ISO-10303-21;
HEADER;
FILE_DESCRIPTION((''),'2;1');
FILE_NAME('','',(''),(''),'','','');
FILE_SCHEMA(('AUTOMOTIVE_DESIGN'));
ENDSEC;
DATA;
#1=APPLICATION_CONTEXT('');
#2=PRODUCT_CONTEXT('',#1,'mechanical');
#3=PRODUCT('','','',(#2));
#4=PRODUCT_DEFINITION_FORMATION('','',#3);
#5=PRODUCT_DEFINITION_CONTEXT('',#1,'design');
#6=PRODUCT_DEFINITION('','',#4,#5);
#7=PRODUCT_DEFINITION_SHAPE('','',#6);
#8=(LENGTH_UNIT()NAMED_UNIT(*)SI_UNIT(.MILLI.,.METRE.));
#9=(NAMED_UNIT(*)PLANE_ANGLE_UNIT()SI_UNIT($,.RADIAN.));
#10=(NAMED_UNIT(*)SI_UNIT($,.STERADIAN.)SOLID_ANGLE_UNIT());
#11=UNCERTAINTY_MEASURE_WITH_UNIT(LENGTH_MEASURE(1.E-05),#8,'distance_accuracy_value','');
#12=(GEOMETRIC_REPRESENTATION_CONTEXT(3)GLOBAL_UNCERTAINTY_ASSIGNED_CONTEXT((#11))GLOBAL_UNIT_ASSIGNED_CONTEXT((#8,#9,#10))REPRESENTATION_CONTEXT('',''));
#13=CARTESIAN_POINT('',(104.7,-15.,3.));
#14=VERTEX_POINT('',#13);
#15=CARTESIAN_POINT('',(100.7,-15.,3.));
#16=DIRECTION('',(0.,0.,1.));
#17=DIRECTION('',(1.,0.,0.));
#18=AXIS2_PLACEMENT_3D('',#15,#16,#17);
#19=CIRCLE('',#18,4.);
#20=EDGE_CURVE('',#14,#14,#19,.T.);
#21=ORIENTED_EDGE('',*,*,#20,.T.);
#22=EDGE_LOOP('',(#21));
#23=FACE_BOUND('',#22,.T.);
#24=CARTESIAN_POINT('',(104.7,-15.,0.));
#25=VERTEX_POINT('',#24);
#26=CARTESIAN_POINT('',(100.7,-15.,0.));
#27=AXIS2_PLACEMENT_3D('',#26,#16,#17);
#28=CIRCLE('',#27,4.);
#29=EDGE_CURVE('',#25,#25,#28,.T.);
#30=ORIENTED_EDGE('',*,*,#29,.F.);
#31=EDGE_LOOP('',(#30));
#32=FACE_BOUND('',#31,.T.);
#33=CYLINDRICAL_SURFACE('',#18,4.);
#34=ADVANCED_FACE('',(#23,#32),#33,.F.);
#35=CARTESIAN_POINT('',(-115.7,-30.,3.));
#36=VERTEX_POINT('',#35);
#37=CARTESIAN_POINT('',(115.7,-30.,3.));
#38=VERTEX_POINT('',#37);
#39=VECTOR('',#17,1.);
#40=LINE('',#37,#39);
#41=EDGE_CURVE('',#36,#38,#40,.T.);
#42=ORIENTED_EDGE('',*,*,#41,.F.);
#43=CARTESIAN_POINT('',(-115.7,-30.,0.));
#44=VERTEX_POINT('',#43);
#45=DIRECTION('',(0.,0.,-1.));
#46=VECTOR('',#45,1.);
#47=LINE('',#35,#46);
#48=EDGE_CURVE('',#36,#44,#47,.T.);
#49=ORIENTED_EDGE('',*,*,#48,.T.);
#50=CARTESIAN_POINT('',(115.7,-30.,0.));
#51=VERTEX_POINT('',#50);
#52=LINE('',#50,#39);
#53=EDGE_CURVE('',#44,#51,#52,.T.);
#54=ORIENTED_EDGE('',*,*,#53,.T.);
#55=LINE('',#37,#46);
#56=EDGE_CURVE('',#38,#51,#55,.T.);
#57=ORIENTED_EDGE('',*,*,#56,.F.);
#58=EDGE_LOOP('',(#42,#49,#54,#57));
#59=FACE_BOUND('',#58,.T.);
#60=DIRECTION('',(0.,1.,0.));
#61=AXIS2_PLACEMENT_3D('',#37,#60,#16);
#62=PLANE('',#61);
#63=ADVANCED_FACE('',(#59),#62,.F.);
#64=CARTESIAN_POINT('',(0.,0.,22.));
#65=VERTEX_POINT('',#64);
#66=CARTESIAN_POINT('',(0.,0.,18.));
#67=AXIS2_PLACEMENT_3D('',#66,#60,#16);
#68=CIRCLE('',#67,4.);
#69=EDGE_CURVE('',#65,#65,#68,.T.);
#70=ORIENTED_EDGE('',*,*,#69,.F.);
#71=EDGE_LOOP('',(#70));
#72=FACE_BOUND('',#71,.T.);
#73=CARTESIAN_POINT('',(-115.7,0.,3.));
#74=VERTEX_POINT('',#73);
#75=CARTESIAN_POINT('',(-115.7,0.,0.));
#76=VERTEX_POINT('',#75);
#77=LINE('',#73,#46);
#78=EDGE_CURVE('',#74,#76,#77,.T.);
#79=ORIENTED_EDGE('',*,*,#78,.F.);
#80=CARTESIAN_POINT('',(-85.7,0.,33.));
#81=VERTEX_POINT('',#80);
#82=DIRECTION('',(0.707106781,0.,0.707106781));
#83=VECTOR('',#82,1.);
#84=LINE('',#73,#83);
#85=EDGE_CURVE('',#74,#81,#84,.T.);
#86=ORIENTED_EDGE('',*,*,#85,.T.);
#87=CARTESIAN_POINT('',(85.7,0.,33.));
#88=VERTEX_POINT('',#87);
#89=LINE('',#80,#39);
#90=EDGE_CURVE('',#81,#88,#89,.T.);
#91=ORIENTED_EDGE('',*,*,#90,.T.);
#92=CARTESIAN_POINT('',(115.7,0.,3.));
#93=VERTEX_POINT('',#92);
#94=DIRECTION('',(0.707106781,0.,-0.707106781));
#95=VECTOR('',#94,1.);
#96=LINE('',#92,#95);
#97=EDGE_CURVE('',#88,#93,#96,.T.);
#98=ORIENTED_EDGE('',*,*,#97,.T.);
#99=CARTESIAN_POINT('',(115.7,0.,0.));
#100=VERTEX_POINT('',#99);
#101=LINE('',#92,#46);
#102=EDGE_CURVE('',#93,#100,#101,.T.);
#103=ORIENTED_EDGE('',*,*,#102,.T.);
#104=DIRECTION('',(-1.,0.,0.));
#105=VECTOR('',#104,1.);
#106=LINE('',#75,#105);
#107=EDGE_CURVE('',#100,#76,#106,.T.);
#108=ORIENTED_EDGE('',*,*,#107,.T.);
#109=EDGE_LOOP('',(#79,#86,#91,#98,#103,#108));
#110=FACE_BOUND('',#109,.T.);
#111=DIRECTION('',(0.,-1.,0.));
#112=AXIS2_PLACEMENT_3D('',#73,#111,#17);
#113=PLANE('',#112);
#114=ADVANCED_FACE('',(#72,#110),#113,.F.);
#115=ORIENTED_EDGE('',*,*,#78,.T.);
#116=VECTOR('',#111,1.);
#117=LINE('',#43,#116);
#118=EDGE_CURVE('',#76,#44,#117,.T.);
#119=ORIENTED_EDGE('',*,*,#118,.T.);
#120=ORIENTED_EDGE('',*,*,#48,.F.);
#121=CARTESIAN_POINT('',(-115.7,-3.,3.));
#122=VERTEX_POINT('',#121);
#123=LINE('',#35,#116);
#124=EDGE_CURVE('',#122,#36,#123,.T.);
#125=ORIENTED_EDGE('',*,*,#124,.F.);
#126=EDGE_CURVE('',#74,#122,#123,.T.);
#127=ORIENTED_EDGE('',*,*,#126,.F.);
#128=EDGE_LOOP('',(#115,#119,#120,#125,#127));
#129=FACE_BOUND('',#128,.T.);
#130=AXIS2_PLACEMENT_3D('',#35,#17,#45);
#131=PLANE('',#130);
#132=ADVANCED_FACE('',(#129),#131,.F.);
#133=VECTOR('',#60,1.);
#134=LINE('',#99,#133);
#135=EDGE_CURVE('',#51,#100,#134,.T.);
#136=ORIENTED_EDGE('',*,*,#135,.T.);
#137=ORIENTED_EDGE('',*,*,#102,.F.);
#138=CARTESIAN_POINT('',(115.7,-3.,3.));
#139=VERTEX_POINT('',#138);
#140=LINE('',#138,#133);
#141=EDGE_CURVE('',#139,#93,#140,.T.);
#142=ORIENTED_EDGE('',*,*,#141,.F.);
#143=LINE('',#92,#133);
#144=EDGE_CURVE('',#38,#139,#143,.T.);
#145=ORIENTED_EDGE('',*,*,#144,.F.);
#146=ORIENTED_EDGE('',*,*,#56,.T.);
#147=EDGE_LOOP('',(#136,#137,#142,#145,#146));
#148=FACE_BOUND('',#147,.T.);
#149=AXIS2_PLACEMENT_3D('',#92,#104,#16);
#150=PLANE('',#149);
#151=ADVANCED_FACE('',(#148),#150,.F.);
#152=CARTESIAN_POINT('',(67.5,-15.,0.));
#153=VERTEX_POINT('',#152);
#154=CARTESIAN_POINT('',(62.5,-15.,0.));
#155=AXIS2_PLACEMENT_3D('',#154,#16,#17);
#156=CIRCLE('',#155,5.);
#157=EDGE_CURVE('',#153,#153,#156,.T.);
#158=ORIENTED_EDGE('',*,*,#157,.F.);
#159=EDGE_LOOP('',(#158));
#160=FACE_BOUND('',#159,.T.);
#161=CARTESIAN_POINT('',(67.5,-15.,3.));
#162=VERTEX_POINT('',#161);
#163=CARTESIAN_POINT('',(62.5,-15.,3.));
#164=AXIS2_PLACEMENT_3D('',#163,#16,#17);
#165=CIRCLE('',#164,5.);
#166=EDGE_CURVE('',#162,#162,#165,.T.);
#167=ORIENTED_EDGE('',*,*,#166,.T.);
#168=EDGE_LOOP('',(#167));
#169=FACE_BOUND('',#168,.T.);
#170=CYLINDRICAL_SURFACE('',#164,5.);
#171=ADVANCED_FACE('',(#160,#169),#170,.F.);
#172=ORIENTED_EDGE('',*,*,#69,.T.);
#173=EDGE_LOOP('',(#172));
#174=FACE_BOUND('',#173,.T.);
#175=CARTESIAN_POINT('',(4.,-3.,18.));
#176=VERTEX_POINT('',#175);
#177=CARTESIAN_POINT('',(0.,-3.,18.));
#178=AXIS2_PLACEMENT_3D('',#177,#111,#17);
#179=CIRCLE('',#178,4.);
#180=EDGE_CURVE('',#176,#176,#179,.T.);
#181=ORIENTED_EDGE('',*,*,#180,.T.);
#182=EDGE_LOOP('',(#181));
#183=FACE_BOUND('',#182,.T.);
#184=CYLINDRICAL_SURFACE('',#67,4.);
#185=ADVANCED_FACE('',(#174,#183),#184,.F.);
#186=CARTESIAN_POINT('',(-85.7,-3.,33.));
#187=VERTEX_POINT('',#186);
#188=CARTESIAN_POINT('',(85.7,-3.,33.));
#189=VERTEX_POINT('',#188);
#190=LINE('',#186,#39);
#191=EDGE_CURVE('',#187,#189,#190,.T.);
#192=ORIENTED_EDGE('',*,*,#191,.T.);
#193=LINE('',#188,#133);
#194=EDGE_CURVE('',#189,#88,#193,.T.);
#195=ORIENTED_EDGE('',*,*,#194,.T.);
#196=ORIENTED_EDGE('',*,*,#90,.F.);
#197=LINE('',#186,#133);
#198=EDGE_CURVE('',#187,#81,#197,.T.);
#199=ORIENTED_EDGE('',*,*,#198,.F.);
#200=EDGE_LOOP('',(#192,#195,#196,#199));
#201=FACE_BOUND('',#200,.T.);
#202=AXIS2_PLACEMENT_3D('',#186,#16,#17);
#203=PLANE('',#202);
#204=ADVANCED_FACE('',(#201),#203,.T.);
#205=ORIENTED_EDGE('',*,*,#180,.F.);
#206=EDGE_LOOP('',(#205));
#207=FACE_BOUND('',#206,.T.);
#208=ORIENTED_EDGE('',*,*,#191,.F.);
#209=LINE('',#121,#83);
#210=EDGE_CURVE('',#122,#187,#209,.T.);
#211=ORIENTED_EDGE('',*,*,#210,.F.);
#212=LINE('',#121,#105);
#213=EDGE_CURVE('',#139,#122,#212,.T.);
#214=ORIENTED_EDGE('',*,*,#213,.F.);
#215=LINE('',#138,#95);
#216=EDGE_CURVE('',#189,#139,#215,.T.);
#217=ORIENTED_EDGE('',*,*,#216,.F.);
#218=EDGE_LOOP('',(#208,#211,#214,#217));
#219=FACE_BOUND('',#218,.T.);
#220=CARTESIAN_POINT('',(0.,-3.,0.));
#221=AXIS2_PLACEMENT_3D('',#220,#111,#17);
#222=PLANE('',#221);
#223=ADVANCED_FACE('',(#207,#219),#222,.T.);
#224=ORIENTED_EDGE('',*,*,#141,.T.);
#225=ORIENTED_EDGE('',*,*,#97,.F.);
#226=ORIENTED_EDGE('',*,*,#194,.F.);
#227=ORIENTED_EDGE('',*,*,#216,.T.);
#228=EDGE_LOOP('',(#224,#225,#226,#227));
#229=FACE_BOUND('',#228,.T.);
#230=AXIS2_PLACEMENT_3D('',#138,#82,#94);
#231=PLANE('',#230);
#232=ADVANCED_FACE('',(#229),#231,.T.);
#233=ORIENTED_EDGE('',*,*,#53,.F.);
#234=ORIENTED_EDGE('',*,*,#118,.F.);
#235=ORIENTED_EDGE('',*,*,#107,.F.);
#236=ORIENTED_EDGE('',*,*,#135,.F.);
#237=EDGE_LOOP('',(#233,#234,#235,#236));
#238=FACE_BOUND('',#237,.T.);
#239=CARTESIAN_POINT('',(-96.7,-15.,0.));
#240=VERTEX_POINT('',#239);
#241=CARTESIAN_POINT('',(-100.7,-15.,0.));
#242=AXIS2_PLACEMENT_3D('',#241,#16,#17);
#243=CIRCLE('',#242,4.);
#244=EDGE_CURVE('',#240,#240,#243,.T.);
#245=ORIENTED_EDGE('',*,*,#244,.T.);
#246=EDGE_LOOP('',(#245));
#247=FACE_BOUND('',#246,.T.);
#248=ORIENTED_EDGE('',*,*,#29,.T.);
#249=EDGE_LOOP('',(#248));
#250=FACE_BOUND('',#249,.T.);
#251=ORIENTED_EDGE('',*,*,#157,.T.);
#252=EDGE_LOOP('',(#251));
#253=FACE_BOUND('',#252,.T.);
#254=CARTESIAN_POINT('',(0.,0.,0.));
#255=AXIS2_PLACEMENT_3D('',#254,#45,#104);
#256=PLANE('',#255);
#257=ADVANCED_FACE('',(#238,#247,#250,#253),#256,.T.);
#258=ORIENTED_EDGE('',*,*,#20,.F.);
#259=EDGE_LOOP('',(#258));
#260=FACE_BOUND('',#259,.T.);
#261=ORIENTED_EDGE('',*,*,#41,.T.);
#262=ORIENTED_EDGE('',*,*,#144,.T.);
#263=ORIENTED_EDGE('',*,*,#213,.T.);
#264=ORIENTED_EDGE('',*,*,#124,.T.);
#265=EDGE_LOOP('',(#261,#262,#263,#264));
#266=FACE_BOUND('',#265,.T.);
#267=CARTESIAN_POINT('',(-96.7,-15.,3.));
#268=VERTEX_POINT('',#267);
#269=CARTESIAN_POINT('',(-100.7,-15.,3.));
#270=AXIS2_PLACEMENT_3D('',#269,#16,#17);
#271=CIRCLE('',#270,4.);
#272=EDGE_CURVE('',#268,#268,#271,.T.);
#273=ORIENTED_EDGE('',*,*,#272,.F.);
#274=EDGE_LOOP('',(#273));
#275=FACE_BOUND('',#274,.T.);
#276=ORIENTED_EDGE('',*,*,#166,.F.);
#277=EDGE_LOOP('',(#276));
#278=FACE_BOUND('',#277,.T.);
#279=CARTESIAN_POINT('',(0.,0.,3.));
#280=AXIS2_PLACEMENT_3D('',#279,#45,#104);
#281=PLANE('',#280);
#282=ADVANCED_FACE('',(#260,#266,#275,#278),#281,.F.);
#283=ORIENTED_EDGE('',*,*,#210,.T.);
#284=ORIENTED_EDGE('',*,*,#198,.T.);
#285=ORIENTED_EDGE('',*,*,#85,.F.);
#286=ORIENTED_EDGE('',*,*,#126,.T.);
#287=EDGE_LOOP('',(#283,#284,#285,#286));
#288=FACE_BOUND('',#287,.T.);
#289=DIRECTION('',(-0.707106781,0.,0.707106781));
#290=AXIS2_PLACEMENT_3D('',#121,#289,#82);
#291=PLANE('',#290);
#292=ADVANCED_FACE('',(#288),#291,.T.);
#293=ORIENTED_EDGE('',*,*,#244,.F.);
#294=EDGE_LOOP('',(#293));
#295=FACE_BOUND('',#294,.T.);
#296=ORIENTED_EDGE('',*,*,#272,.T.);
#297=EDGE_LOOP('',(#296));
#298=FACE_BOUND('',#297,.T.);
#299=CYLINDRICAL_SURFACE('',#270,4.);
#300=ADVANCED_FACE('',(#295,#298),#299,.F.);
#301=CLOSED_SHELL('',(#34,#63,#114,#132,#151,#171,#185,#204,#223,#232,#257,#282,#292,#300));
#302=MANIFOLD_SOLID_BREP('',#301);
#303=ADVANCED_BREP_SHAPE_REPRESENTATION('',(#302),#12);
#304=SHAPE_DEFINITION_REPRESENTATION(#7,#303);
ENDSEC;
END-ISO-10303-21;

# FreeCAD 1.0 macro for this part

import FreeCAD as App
import Part
import Sketcher
from FreeCAD import Vector
Q = App.Units.Quantity

doc = App.newDocument("Part")
body = doc.addObject("PartDesign::Body", "Body")

sketch1 = body.newObject("Sketcher::SketchObject", "Sketch")
sketch1.AttachmentSupport = (doc.getObject("XY_Plane"), [""])
sketch1.MapMode = "FlatFace"
sketch1.addGeometry(Part.LineSegment(Vector(-116, 0, 0), Vector(-116, -30, 0)), False)
sketch1.addGeometry(Part.LineSegment(Vector(-116, -30, 0), Vector(116, -30, 0)), False)
sketch1.addGeometry(Part.LineSegment(Vector(116, -30, 0), Vector(116, 0, 0)), False)
sketch1.addGeometry(Part.LineSegment(Vector(116, 0, 0), Vector(-116, 0, 0)), False)
sketch1.addConstraint(Sketcher.Constraint("Coincident", 0, 2, 1, 1))
sketch1.addConstraint(Sketcher.Constraint("Coincident", 1, 2, 2, 1))
sketch1.addConstraint(Sketcher.Constraint("Coincident", 2, 2, 3, 1))
sketch1.addConstraint(Sketcher.Constraint("Coincident", 3, 2, 0, 1))
sketch1.addConstraint(Sketcher.Constraint("Vertical", 0))
sketch1.addConstraint(Sketcher.Constraint("Horizontal", 1))
sketch1.addConstraint(Sketcher.Constraint("Vertical", 2))
sketch1.addConstraint(Sketcher.Constraint("Horizontal", 3))
sketch1.addConstraint(Sketcher.Constraint("Symmetric", 2, 2, 3, 2, -1, 1))
sketch1.addConstraint(Sketcher.Constraint("DistanceY", 0, 2, 0, 1, Q("30 mm")))
sketch1.addConstraint(Sketcher.Constraint("DistanceX", 1, 1, 1, 2, Q("231.4 mm")))
pad1 = body.newObject("PartDesign::Pad", "Pad")
pad1.Profile = sketch1
pad1.Length = 3

sketch2 = body.newObject("Sketcher::SketchObject", "Sketch001")
sketch2.AttachmentSupport = (doc.getObject("XZ_Plane"), [""])
sketch2.MapMode = "FlatFace"
sketch2.addGeometry(Part.LineSegment(Vector(115.7, 3, 0), Vector(-115.7, 3, 0)), False)
sketch2.addGeometry(Part.LineSegment(Vector(-115.7, 3, 0), Vector(-85.7, 33, 0)), False)
sketch2.addGeometry(Part.LineSegment(Vector(-85.7, 33, 0), Vector(85.7, 33, 0)), False)
sketch2.addGeometry(Part.LineSegment(Vector(85.7, 33, 0), Vector(115.7, 3, 0)), False)
sketch2.addConstraint(Sketcher.Constraint("Coincident", 0, 2, 1, 1))
sketch2.addConstraint(Sketcher.Constraint("Coincident", 1, 2, 2, 1))
sketch2.addConstraint(Sketcher.Constraint("Coincident", 2, 2, 3, 1))
sketch2.addConstraint(Sketcher.Constraint("Coincident", 3, 2, 0, 1))
sketch2.addConstraint(Sketcher.Constraint("Horizontal", 0))
sketch2.addConstraint(Sketcher.Constraint("Horizontal", 2))
sketch2.addConstraint(Sketcher.Constraint("Perpendicular", 1, 3))
sketch2.addConstraint(Sketcher.Constraint("Equal", 1, 3))
sketch2.addConstraint(Sketcher.Constraint("DistanceX", 0, 2, 0, 1, Q("231.4 mm")))
sketch2.addConstraint(Sketcher.Constraint("DistanceX", 2, 1, 2, 2, Q("171.4 mm")))
sketch2.addConstraint(Sketcher.Constraint("DistanceY", -1, 1, 0, 2, Q("3 mm")))
sketch2.addConstraint(Sketcher.Constraint("DistanceX", 0, 2, -1, 1, Q("115.7 mm")))
pad2 = body.newObject("PartDesign::Pad", "Pad001")
pad2.Profile = sketch2
pad2.Length = 3

sketch3 = body.newObject("Sketcher::SketchObject", "Sketch002")
sketch3.AttachmentSupport = (doc.getObject("XY_Plane"), [""])
sketch3.MapMode = "FlatFace"
sketch3.AttachmentOffset = App.Placement(Vector(0, 0, 3), App.Rotation())
sketch3.addGeometry(Part.Circle(Vector(-100.7, -15, 0), Vector(0, 0, 1), 4), False)
sketch3.addGeometry(Part.Circle(Vector(100.7, -15, 0), Vector(0, 0, 1), 4), False)
sketch3.addConstraint(Sketcher.Constraint("Equal", 0, 1))
sketch3.addConstraint(Sketcher.Constraint("Symmetric", 0, 3, 1, 3, -2))
sketch3.addConstraint(Sketcher.Constraint("Diameter", 0, Q("8 mm")))
sketch3.addConstraint(Sketcher.Constraint("DistanceY", 0, 3, -1, 1, Q("15 mm")))
sketch3.addConstraint(Sketcher.Constraint("DistanceX", 0, 3, -1, 1, Q("100.7 mm")))
doc.recompute()
hole = body.newObject("PartDesign::Hole", "Hole")
hole.Profile = sketch3
hole.ThreadType = "None"
hole.Diameter = 8
hole.DepthType = "ThroughAll"

sketch4 = body.newObject("Sketcher::SketchObject", "Sketch003")
sketch4.AttachmentSupport = (doc.getObject("XZ_Plane"), [""])
sketch4.MapMode = "FlatFace"
sketch4.addGeometry(Part.Circle(Vector(0, 18, 0), Vector(0, 0, 1), 4), False)
sketch4.addConstraint(Sketcher.Constraint("PointOnObject", 0, 3, -2))
sketch4.addConstraint(Sketcher.Constraint("Diameter", 0, Q("8 mm")))
sketch4.addConstraint(Sketcher.Constraint("DistanceY", -1, 1, 0, 3, Q("18 mm")))
doc.recompute()
hole2 = body.newObject("PartDesign::Hole", "Hole001")
hole2.Profile = sketch4
hole2.ThreadType = "None"
hole2.Diameter = 8
hole2.DepthType = "ThroughAll"
hole2.Reversed = True

sketch5 = body.newObject("Sketcher::SketchObject", "Sketch004")
sketch5.AttachmentSupport = (doc.getObject("XY_Plane"), [""])
sketch5.MapMode = "FlatFace"
sketch5.AttachmentOffset = App.Placement(Vector(0, 0, 3), App.Rotation())
sketch5.addGeometry(Part.Circle(Vector(62, -15, 0), Vector(0, 0, 1), 5), False)
sketch5.addConstraint(Sketcher.Constraint("Diameter", 0, Q("10 mm")))
sketch5.addConstraint(Sketcher.Constraint("DistanceY", 0, 3, -1, 1, Q("15 mm")))
sketch5.addConstraint(Sketcher.Constraint("DistanceX", -1, 1, 0, 3, Q("62.5 mm")))
doc.recompute()
hole3 = body.newObject("PartDesign::Hole", "Hole002")
hole3.Profile = sketch5
hole3.ThreadType = "None"
hole3.Diameter = 10
hole3.DepthType = "ThroughAll"

doc.recompute()
